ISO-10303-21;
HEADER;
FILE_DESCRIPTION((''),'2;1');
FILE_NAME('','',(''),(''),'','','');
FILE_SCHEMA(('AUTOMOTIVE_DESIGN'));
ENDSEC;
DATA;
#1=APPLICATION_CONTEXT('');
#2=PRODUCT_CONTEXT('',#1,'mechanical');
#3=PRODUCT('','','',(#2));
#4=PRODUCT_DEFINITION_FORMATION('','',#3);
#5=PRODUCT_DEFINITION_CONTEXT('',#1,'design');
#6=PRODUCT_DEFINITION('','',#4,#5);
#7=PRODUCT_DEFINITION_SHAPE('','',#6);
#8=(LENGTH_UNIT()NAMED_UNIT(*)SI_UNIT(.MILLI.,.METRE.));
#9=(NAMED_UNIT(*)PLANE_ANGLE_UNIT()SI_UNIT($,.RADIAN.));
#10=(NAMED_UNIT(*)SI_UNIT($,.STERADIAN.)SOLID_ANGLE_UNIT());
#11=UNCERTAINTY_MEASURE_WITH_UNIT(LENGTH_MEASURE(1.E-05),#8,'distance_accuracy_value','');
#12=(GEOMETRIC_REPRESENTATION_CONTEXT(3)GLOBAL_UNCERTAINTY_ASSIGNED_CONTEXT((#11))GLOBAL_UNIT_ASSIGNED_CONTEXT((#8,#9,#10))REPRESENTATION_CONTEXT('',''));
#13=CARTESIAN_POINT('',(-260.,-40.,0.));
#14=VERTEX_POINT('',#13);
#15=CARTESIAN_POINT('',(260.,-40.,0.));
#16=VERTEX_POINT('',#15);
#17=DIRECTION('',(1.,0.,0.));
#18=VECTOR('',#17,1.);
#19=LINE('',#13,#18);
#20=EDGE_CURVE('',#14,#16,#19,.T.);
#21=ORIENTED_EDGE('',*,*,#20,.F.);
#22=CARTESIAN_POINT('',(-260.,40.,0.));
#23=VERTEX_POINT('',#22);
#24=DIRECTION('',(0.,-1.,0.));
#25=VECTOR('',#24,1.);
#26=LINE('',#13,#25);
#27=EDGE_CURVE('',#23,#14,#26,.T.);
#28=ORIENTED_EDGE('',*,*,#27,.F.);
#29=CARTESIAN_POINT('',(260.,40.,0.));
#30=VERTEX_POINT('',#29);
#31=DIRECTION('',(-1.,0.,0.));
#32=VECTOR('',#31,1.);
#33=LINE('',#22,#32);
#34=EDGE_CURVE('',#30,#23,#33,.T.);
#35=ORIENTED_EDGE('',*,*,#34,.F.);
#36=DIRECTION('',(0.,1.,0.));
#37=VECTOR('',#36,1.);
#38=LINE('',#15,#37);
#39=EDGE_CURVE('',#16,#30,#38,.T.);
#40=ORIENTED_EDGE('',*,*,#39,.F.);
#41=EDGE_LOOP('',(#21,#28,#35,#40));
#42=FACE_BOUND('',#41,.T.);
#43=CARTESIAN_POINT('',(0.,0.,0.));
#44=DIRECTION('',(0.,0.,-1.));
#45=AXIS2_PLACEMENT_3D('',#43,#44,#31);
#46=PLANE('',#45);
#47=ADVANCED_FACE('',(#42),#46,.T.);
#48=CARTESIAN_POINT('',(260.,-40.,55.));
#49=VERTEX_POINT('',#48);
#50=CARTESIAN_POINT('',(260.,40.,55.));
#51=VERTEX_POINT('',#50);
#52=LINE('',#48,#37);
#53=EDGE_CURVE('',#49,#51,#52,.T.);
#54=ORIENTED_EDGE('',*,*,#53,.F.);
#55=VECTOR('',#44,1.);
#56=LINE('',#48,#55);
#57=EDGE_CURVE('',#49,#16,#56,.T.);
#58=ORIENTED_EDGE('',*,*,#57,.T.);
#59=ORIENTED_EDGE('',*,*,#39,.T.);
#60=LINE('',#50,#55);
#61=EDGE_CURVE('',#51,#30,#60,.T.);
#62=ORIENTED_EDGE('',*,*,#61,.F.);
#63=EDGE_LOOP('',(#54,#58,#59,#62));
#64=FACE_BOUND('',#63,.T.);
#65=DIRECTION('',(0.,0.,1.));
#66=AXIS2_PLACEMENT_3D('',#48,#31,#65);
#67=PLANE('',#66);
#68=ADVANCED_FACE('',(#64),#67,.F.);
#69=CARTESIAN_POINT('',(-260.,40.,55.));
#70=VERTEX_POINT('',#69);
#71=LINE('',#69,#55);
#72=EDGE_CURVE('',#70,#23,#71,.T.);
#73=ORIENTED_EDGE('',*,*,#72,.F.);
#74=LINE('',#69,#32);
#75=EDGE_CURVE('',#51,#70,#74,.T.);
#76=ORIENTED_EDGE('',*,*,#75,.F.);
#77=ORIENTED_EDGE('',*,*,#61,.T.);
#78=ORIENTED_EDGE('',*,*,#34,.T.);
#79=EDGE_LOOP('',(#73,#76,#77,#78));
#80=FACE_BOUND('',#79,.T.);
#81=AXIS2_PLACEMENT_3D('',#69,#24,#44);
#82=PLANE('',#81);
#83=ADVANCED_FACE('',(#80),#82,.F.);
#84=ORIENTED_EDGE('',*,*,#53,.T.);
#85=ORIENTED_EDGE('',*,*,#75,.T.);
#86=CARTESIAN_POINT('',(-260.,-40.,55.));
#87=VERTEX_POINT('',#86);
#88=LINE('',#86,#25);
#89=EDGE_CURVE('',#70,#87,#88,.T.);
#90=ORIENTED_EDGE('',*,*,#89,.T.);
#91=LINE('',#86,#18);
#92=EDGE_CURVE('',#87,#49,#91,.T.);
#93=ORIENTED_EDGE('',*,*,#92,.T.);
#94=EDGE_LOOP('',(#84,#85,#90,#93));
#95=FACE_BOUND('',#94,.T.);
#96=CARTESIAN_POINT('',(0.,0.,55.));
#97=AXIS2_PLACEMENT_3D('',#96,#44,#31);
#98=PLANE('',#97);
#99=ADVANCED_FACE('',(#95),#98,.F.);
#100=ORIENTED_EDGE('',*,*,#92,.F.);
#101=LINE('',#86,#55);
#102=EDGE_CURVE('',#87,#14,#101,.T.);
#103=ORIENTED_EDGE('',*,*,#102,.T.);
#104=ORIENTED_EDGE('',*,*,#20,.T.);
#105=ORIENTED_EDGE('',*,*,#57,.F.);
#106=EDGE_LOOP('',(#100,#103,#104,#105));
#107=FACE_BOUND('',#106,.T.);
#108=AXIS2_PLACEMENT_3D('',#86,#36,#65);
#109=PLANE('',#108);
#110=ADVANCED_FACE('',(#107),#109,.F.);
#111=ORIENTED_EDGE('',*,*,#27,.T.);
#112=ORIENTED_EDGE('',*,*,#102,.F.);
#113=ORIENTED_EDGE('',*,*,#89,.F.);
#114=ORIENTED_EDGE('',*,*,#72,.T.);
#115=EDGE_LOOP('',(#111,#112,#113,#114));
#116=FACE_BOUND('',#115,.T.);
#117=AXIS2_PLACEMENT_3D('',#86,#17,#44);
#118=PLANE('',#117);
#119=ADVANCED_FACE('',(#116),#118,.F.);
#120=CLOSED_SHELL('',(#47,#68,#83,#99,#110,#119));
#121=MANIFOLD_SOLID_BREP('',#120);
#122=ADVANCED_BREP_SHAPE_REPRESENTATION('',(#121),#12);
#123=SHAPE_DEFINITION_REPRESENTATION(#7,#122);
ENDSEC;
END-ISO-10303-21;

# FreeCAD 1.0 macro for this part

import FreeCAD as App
import Part
import Sketcher
from FreeCAD import Vector
Q = App.Units.Quantity


def add_polygon(sketch, points):
    """Adds a closed chain of lines whose ends are joined by coincident constraints."""
    first, n = sketch.GeometryCount, len(points)
    for a, b in zip(points, points[1:] + points[:1]):
        sketch.addGeometry(Part.LineSegment(App.Vector(*a, 0), App.Vector(*b, 0)), False)
    for i in range(n):
        sketch.addConstraint(Sketcher.Constraint("Coincident", first + i, 2, first + (i + 1) % n, 1))

doc = App.newDocument("Part")
body = doc.addObject("PartDesign::Body", "Body")

# Sketch on XY plane
sketch1 = doc.addObject("Sketcher::SketchObject", "Sketch")
body.addObject(sketch1)
sketch1.AttachmentSupport = (doc.XY_Plane, [""])
sketch1.MapMode = "FlatFace"
add_polygon(sketch1, [(-260, 40), (-260, -40), (260, -40), (260, 40)])  # lines 0-3
sketch1.addConstraint(Sketcher.Constraint("Vertical", 0))
sketch1.addConstraint(Sketcher.Constraint("Horizontal", 1))
sketch1.addConstraint(Sketcher.Constraint("Vertical", 2))
sketch1.addConstraint(Sketcher.Constraint("Horizontal", 3))
sketch1.addConstraint(Sketcher.Constraint("Symmetric", 0, 2, 2, 2, -1, 1))
sketch1.addConstraint(Sketcher.Constraint("DistanceX", 1, 1, 1, 2, Q("520 mm")))
sketch1.addConstraint(Sketcher.Constraint("DistanceY", 0, 2, 0, 1, Q("80 mm")))
pad1 = doc.addObject("PartDesign::Pad", "Pad")
body.addObject(pad1)
pad1.Profile = sketch1
pad1.Length = 55

doc.recompute()
